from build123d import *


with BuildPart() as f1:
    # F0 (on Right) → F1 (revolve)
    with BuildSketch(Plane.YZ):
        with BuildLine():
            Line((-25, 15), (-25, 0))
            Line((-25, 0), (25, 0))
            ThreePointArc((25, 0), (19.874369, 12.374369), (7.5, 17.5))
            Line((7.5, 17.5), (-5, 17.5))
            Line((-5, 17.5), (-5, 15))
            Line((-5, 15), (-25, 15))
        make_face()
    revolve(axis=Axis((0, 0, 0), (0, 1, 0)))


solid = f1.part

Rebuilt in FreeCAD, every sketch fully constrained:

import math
import FreeCAD as App
import Part
import Sketcher

doc = App.newDocument("Part")
body = doc.addObject("PartDesign::Body", "Body")

sketch1 = body.newObject("Sketcher::SketchObject", "Sketch")
sketch1.AttachmentSupport = (doc.getObject("YZ_Plane"), [""])
sketch1.MapMode = "FlatFace"
sketch1.addGeometry(Part.LineSegment(App.Vector(-25, 15, 0), App.Vector(-25, 0, 0)), False)
sketch1.addGeometry(Part.LineSegment(App.Vector(-25, 0, 0), App.Vector(25, 0, 0)), False)
sketch1.addGeometry(Part.ArcOfCircle(Part.Circle(App.Vector(7.5, 0, 0), App.Vector(0, 0, 1), 17.5), math.radians(0), math.radians(90)), False)
sketch1.addGeometry(Part.LineSegment(App.Vector(7.5, 17.5, 0), App.Vector(-5, 17.5, 0)), False)
sketch1.addGeometry(Part.LineSegment(App.Vector(-5, 17.5, 0), App.Vector(-5, 15, 0)), False)
sketch1.addGeometry(Part.LineSegment(App.Vector(-5, 15, 0), App.Vector(-25, 15, 0)), False)
sketch1.addConstraint(Sketcher.Constraint("Coincident", 0, 2, 1, 1))
sketch1.addConstraint(Sketcher.Constraint("Coincident", 1, 2, 2, 1))
sketch1.addConstraint(Sketcher.Constraint("Tangent", 2, 2, 3, 1))
sketch1.addConstraint(Sketcher.Constraint("Coincident", 3, 2, 4, 1))
sketch1.addConstraint(Sketcher.Constraint("Coincident", 4, 2, 5, 1))
sketch1.addConstraint(Sketcher.Constraint("Coincident", 5, 2, 0, 1))
sketch1.addConstraint(Sketcher.Constraint("Vertical", 0))
sketch1.addConstraint(Sketcher.Constraint("Horizontal", 1))
sketch1.addConstraint(Sketcher.Constraint("Horizontal", 3))
sketch1.addConstraint(Sketcher.Constraint("Vertical", 4))
sketch1.addConstraint(Sketcher.Constraint("Horizontal", 5))
sketch1.addConstraint(Sketcher.Constraint("Symmetric", 0, 2, 1, 2, -1, 1))
sketch1.addConstraint(Sketcher.Constraint("PointOnObject", 2, 3, -1))
sketch1.addConstraint(Sketcher.Constraint("Radius", 2, 17.499999))
sketch1.addConstraint(Sketcher.Constraint("DistanceX", 1, 1, 1, 2, 50.0))
sketch1.addConstraint(Sketcher.Constraint("DistanceX", 5, 2, 5, 1, 20.0))
sketch1.addConstraint(Sketcher.Constraint("DistanceY", 0, 2, 0, 1, 15.0))
revolution = body.newObject("PartDesign::Revolution", "Revolution")
revolution.Profile = sketch1
revolution.ReferenceAxis = (sketch1, ["H_Axis"])
revolution.Angle = 360

doc.recompute()
